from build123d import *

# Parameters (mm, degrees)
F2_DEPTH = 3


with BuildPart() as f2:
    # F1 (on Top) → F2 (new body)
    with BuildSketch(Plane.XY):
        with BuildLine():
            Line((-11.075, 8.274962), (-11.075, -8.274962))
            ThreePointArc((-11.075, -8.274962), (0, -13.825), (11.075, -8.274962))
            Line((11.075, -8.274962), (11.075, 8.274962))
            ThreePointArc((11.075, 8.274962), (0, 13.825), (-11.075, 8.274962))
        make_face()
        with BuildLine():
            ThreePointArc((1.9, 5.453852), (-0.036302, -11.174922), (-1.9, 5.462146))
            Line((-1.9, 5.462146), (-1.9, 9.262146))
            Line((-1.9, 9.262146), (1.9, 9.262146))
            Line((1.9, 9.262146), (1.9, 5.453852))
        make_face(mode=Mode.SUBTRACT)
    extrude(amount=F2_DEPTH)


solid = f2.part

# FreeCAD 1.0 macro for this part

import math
import FreeCAD as App
import Part
import Sketcher

V = App.Vector

doc = App.newDocument("Part")
body = doc.addObject("PartDesign::Body", "Body")

# Sketch on XY plane
sketch1 = body.newObject("Sketcher::SketchObject", "Sketch")
sketch1.AttachmentSupport = (doc.getObject("XY_Plane"), [""])
sketch1.MapMode = "FlatFace"
sketch1.addGeometry(Part.LineSegment(V(-11.1, 8.3, 0), V(-11.1, -8.3, 0)), False)
sketch1.addGeometry(Part.ArcOfCircle(Part.Circle(V(0, 0, 0), V(0, 0, 1), 13.8), math.radians(-143), math.radians(-37)), False)
sketch1.addGeometry(Part.LineSegment(V(11.1, -8.3, 0), V(11.1, 8.3, 0)), False)
sketch1.addGeometry(Part.ArcOfCircle(Part.Circle(V(0, 0, 0), V(0, 0, 1), 13.8), math.radians(37), math.radians(143)), False)
sketch1.addGeometry(Part.LineSegment(V(1.9, 9.3, 0), V(1.9, 5.5, 0)), False)
sketch1.addGeometry(Part.ArcOfCircle(Part.Circle(V(0, -2.7, 0), V(0, 0, 1), 8.4), math.radians(103), math.radians(437)), False)
sketch1.addGeometry(Part.LineSegment(V(-1.9, 5.5, 0), V(-1.9, 9.3, 0)), False)
sketch1.addGeometry(Part.LineSegment(V(-1.9, 9.3, 0), V(1.9, 9.3, 0)), False)
sketch1.addConstraint(Sketcher.Constraint("Coincident", 0, 2, 1, 1))
sketch1.addConstraint(Sketcher.Constraint("Coincident", 1, 2, 2, 1))
sketch1.addConstraint(Sketcher.Constraint("Coincident", 2, 2, 3, 1))
sketch1.addConstraint(Sketcher.Constraint("Coincident", 3, 2, 0, 1))
sketch1.addConstraint(Sketcher.Constraint("Coincident", 4, 2, 5, 2))
sketch1.addConstraint(Sketcher.Constraint("Coincident", 5, 1, 6, 1))
sketch1.addConstraint(Sketcher.Constraint("Coincident", 6, 2, 7, 1))
sketch1.addConstraint(Sketcher.Constraint("Coincident", 7, 2, 4, 1))
sketch1.addConstraint(Sketcher.Constraint("Vertical", 0))
sketch1.addConstraint(Sketcher.Constraint("Vertical", 2))
sketch1.addConstraint(Sketcher.Constraint("Vertical", 4))
sketch1.addConstraint(Sketcher.Constraint("Vertical", 6))
sketch1.addConstraint(Sketcher.Constraint("Horizontal", 7))
sketch1.addConstraint(Sketcher.Constraint("Coincident", 1, 3, -1, 1))
sketch1.addConstraint(Sketcher.Constraint("Coincident", 3, 3, -1, 1))
sketch1.addConstraint(Sketcher.Constraint("Equal", 1, 3))
sketch1.addConstraint(Sketcher.Constraint("Horizontal", 0, 2, 1, 2))
sketch1.addConstraint(Sketcher.Constraint("Equal", 7, 6))
sketch1.addConstraint(Sketcher.Constraint("DistanceX", 7, 1, 7, 2, 3.8))
sketch1.addConstraint(Sketcher.Constraint("Radius", 1, 13.825))
sketch1.addConstraint(Sketcher.Constraint("Radius", 5, 8.425))
sketch1.addConstraint(Sketcher.Constraint("DistanceX", -1, 1, 4, 2, 1.9))
sketch1.addConstraint(Sketcher.Constraint("DistanceX", 0, 2, 1, 2, 22.15))
sketch1.addConstraint(Sketcher.Constraint("DistanceY", 4, 2, 4, 1, 3.808294))
sketch1.addConstraint(Sketcher.Constraint("DistanceY", 5, 3, -1, 1, 2.749942))
pad1 = body.newObject("PartDesign::Pad", "Pad")
pad1.Profile = sketch1
pad1.Length = 3

doc.recompute()
